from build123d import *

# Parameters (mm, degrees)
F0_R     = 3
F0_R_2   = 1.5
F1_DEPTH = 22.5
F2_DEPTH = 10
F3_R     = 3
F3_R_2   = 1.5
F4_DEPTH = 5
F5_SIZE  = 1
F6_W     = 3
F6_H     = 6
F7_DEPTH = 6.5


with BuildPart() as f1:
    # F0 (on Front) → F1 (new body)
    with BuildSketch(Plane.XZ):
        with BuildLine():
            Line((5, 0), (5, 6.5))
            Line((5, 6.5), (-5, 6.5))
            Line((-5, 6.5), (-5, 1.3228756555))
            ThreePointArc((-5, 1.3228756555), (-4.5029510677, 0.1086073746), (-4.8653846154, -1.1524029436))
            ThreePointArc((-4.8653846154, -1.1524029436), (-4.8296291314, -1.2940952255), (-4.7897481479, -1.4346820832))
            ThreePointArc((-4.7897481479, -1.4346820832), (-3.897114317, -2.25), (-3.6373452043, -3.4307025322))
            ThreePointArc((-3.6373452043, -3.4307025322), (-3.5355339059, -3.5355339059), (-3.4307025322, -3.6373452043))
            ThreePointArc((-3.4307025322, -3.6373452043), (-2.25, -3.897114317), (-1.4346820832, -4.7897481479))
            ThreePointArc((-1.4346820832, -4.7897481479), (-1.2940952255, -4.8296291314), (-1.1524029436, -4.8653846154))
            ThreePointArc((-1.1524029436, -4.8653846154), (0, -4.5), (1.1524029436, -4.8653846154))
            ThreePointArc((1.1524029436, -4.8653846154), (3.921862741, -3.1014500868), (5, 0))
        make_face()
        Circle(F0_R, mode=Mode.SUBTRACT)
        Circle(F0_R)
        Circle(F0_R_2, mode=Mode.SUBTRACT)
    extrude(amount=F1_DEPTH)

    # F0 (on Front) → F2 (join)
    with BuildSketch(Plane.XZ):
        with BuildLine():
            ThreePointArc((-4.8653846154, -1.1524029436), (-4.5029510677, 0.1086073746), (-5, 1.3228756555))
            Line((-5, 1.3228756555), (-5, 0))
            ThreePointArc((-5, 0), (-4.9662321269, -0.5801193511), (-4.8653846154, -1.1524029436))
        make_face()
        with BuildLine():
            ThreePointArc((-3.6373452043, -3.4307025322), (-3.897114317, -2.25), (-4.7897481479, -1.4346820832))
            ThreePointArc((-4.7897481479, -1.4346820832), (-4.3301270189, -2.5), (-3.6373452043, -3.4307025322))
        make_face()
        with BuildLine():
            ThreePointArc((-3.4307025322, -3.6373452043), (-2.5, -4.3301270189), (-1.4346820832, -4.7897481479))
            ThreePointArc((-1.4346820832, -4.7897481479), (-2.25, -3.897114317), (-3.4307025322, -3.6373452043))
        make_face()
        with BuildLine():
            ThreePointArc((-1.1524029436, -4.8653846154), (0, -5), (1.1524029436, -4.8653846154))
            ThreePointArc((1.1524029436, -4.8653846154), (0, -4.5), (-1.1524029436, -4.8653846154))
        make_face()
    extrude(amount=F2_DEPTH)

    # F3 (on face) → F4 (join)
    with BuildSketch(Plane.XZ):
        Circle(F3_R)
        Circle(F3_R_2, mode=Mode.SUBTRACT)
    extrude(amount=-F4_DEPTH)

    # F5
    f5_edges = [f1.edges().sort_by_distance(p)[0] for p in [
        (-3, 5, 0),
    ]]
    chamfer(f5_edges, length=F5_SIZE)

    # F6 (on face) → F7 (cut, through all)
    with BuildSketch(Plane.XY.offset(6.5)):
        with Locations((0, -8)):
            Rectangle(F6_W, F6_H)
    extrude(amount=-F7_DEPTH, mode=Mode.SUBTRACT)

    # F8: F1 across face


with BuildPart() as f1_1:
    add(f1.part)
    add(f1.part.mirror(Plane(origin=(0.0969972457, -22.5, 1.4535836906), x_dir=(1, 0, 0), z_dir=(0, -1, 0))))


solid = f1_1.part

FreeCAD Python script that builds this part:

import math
import FreeCAD as App
import Part
import Sketcher


def edges_at(feature, points):
    """Names of the edges that pass closest to the given points."""
    edges = feature.Shape.Edges
    near = lambda p: min(range(len(edges)), key=lambda i: edges[i].distToShape(Part.Vertex(*p))[0])
    return sorted({f"Edge{near(p) + 1}" for p in points})

doc = App.newDocument("Part")
body = doc.addObject("PartDesign::Body", "Body")

# Sketch on XZ plane
sketch1 = body.newObject("Sketcher::SketchObject", "Sketch")
sketch1.AttachmentSupport = (doc.getObject("XZ_Plane"), [""])
sketch1.MapMode = "FlatFace"
sketch1.addGeometry([
    Part.LineSegment(App.Vector(5, 0, 0), App.Vector(5, 6.5, 0)),  # 0
    Part.LineSegment(App.Vector(5, 6.5, 0), App.Vector(-5, 6.5, 0)),  # 1
    Part.LineSegment(App.Vector(-5, 6.5, 0), App.Vector(-5, 1.322876, 0)),  # 2
    Part.ArcOfCircle(Part.Circle(App.Vector(-6.5, 0, 0), App.Vector(0, 0, 1), 2), math.radians(-35.183815), math.radians(41.409622)),  # 3
    Part.ArcOfCircle(Part.Circle(App.Vector(0, 0, 0), App.Vector(0, 0, 1), 5), math.radians(-166.674632), math.radians(-163.325368)),  # 4
    Part.ArcOfCircle(Part.Circle(App.Vector(-5.629165, -3.25, 0), App.Vector(0, 0, 1), 2), math.radians(-5.183815), math.radians(65.183816)),  # 5
    Part.ArcOfCircle(Part.Circle(App.Vector(0, 0, 0), App.Vector(0, 0, 1), 5), math.radians(-136.674632), math.radians(-133.325368)),  # 6
    Part.ArcOfCircle(Part.Circle(App.Vector(-3.25, -5.629165, 0), App.Vector(0, 0, 1), 2), math.radians(24.816184), math.radians(95.183815)),  # 7
    Part.ArcOfCircle(Part.Circle(App.Vector(0, 0, 0), App.Vector(0, 0, 1), 5), math.radians(-106.674632), math.radians(-103.325368)),  # 8
    Part.ArcOfCircle(Part.Circle(App.Vector(0, -6.5, 0), App.Vector(0, 0, 1), 2), math.radians(54.816185), math.radians(125.183815)),  # 9
    Part.ArcOfCircle(Part.Circle(App.Vector(0, 0, 0), App.Vector(0, 0, 1), 5), math.radians(-76.674632), math.radians(0)),  # 10
    Part.Circle(App.Vector(0, 0, 0), App.Vector(0, 0, 1), 1.5),  # 11
], False)
sketch1.addConstraint([
    Sketcher.Constraint("Coincident", 0, 2, 1, 1),
    Sketcher.Constraint("Coincident", 1, 2, 2, 1),
    Sketcher.Constraint("Coincident", 2, 2, 3, 2),
    Sketcher.Constraint("Coincident", 3, 1, 4, 1),
    Sketcher.Constraint("Coincident", 4, 2, 5, 2),
    Sketcher.Constraint("Coincident", 5, 1, 6, 1),
    Sketcher.Constraint("Coincident", 6, 2, 7, 2),
    Sketcher.Constraint("Coincident", 7, 1, 8, 1),
    Sketcher.Constraint("Coincident", 8, 2, 9, 2),
    Sketcher.Constraint("Coincident", 9, 1, 10, 1),
    Sketcher.Constraint("Tangent", 10, 2, 0, 1),
    Sketcher.Constraint("Vertical", 0),
    Sketcher.Constraint("Horizontal", 1),
    Sketcher.Constraint("Vertical", 2),
    Sketcher.Constraint("Coincident", 4, 3, -1, 1),
    Sketcher.Constraint("Coincident", 6, 3, -1, 1),
    Sketcher.Constraint("Coincident", 8, 3, -1, 1),
    Sketcher.Constraint("Coincident", 10, 3, -1, 1),
    Sketcher.Constraint("Coincident", 11, 3, -1, 1),
    Sketcher.Constraint("Equal", 3, 5),
    Sketcher.Constraint("Equal", 4, 6),
    Sketcher.Constraint("Equal", 5, 7),
    Sketcher.Constraint("Equal", 6, 8),
    Sketcher.Constraint("Equal", 7, 9),
    Sketcher.Constraint("Equal", 8, 10),
    Sketcher.Constraint("PointOnObject", 3, 3, -1),
    Sketcher.Constraint("PointOnObject", 9, 3, -2),
    Sketcher.Constraint("Diameter", 11, 3.0),
    Sketcher.Constraint("Radius", 3, 2.0),
    Sketcher.Constraint("Radius", 4, 5.0),
    Sketcher.Constraint("DistanceX", 1, 2, 1, 1, 10.0),
    Sketcher.Constraint("DistanceY", 0, 1, 0, 2, 6.5),
    Sketcher.Constraint("DistanceX", 3, 3, -1, 1, 6.5),
    Sketcher.Constraint("DistanceY", 9, 3, -1, 1, 6.5),
    Sketcher.Constraint("DistanceY", 5, 3, -1, 1, 3.25),
    Sketcher.Constraint("DistanceX", 7, 3, -1, 1, 3.25),
    Sketcher.Constraint("DistanceY", 5, 1, 3, 1, 2.2783),
    Sketcher.Constraint("DistanceX", 6, 2, 8, 2, 2.2783),
])
pad1 = body.newObject("PartDesign::Pad", "Pad")
pad1.Profile = sketch1
pad1.Length = 22.5

# Sketch on XZ plane
sketch2 = body.newObject("Sketcher::SketchObject", "Sketch001")
sketch2.AttachmentSupport = (doc.getObject("XZ_Plane"), [""])
sketch2.MapMode = "FlatFace"
sketch2.addGeometry([
    Part.ArcOfCircle(Part.Circle(App.Vector(-6.5, 0, 0), App.Vector(0, 0, 1), 2), math.radians(-35.183815), math.radians(41.409622)),  # 0
    Part.LineSegment(App.Vector(-5, 1.322876, 0), App.Vector(-5, 0, 0)),  # 1
    Part.ArcOfCircle(Part.Circle(App.Vector(0, 0, 0), App.Vector(0, 0, 1), 5), math.radians(180), math.radians(193.325368)),  # 2
    Part.ArcOfCircle(Part.Circle(App.Vector(-5.629165, -3.25, 0), App.Vector(0, 0, 1), 2), math.radians(-5.183815), math.radians(65.183816)),  # 3
    Part.ArcOfCircle(Part.Circle(App.Vector(0, 0, 0), App.Vector(0, 0, 1), 5), math.radians(-163.325368), math.radians(-136.674632)),  # 4
    Part.ArcOfCircle(Part.Circle(App.Vector(0, 0, 0), App.Vector(0, 0, 1), 5), math.radians(-133.325368), math.radians(-106.674632)),  # 5
    Part.ArcOfCircle(Part.Circle(App.Vector(-3.25, -5.629165, 0), App.Vector(0, 0, 1), 2), math.radians(24.816184), math.radians(95.183815)),  # 6
    Part.ArcOfCircle(Part.Circle(App.Vector(0, 0, 0), App.Vector(0, 0, 1), 5), math.radians(-103.325368), math.radians(-76.674632)),  # 7
    Part.ArcOfCircle(Part.Circle(App.Vector(0, -6.5, 0), App.Vector(0, 0, 1), 2), math.radians(54.816185), math.radians(125.183815)),  # 8
], False)
sketch2.addConstraint([
    Sketcher.Constraint("Coincident", 0, 2, 1, 1),
    Sketcher.Constraint("Tangent", 1, 2, 2, 1),
    Sketcher.Constraint("Coincident", 2, 2, 0, 1),
    Sketcher.Constraint("Coincident", 3, 1, 4, 2),
    Sketcher.Constraint("Coincident", 4, 1, 3, 2),
    Sketcher.Constraint("Coincident", 5, 1, 6, 2),
    Sketcher.Constraint("Coincident", 6, 1, 5, 2),
    Sketcher.Constraint("Coincident", 7, 1, 8, 2),
    Sketcher.Constraint("Coincident", 8, 1, 7, 2),
    Sketcher.Constraint("Vertical", 1),
    Sketcher.Constraint("Coincident", 2, 3, -1, 1),
    Sketcher.Constraint("Coincident", 4, 3, -1, 1),
    Sketcher.Constraint("Coincident", 5, 3, -1, 1),
    Sketcher.Constraint("Coincident", 7, 3, -1, 1),
    Sketcher.Constraint("Equal", 0, 3),
    Sketcher.Constraint("Equal", 2, 4),
    Sketcher.Constraint("Equal", 4, 5),
    Sketcher.Constraint("Equal", 3, 6),
    Sketcher.Constraint("Equal", 5, 7),
    Sketcher.Constraint("Equal", 6, 8),
    Sketcher.Constraint("PointOnObject", 0, 3, -1),
    Sketcher.Constraint("PointOnObject", 8, 3, -2),
    Sketcher.Constraint("Radius", 0, 2.0),
    Sketcher.Constraint("Radius", 2, 5.0),
    Sketcher.Constraint("DistanceX", 0, 3, -1, 1, 6.5),
    Sketcher.Constraint("DistanceY", 8, 3, -1, 1, 6.5),
    Sketcher.Constraint("DistanceY", 3, 3, -1, 1, 3.25),
    Sketcher.Constraint("DistanceX", 6, 3, -1, 1, 3.25),
    Sketcher.Constraint("DistanceY", 3, 1, 2, 2, 2.2783),
    Sketcher.Constraint("DistanceX", 5, 1, 7, 1, 2.2783),
])
pad2 = body.newObject("PartDesign::Pad", "Pad001")
pad2.Profile = sketch2
pad2.Length = 10

# Sketch on XZ plane
sketch3 = body.newObject("Sketcher::SketchObject", "Sketch002")
sketch3.AttachmentSupport = (doc.getObject("XZ_Plane"), [""])
sketch3.MapMode = "FlatFace"
sketch3.addGeometry([
    Part.Circle(App.Vector(0, 0, 0), App.Vector(0, 0, 1), 3),
    Part.Circle(App.Vector(0, 0, 0), App.Vector(0, 0, 1), 1.5),
], False)
sketch3.addConstraint([
    Sketcher.Constraint("Coincident", 0, 3, -1, 1),
    Sketcher.Constraint("Coincident", 1, 3, -1, 1),
    Sketcher.Constraint("Diameter", 0, 6.0),
    Sketcher.Constraint("Diameter", 1, 3.0),
])
pad3 = body.newObject("PartDesign::Pad", "Pad002")
pad3.Profile = sketch3
pad3.Length = 5
pad3.Reversed = True
doc.recompute()

chamfer = body.newObject("PartDesign::Chamfer", "Chamfer")
chamfer.Base = (pad3, edges_at(pad3, [(-3, 5, 0)]))
chamfer.Size = 1

# Sketch on XY plane
sketch4 = body.newObject("Sketcher::SketchObject", "Sketch003")
sketch4.AttachmentSupport = (doc.getObject("XY_Plane"), [""])
sketch4.MapMode = "FlatFace"
sketch4.AttachmentOffset = App.Placement(App.Vector(0, 0, 6.5), App.Rotation())
sketch4.addGeometry([
    Part.LineSegment(App.Vector(-1.5, -5, 0), App.Vector(-1.5, -11, 0)),
    Part.LineSegment(App.Vector(-1.5, -11, 0), App.Vector(1.5, -11, 0)),
    Part.LineSegment(App.Vector(1.5, -11, 0), App.Vector(1.5, -5, 0)),
    Part.LineSegment(App.Vector(1.5, -5, 0), App.Vector(-1.5, -5, 0)),
], False)
sketch4.addConstraint([
    Sketcher.Constraint("Coincident", 0, 2, 1, 1),
    Sketcher.Constraint("Coincident", 1, 2, 2, 1),
    Sketcher.Constraint("Coincident", 2, 2, 3, 1),
    Sketcher.Constraint("Coincident", 3, 2, 0, 1),
    Sketcher.Constraint("Vertical", 0),
    Sketcher.Constraint("Horizontal", 1),
    Sketcher.Constraint("Vertical", 2),
    Sketcher.Constraint("Horizontal", 3),
    Sketcher.Constraint("DistanceX", 1, 1, 1, 2, 3.0),
    Sketcher.Constraint("DistanceY", 0, 2, 0, 1, 6.0),
    Sketcher.Constraint("DistanceY", 0, 2, -1, 1, 11.0),
    Sketcher.Constraint("DistanceX", 0, 2, -1, 1, 1.5),
])
pocket1 = body.newObject("PartDesign::Pocket", "Pocket")
pocket1.Profile = sketch4
pocket1.Length = 6.5
body2 = doc.addObject("PartDesign::Body", "Body001")
doc.recompute()

body2.BaseFeature = body
doc.recompute()

mirroring = doc.addObject("Part::Mirroring", "Mirroring")
mirroring.Source = body
mirroring.Base = App.Vector(0.096997, -22.5, 1.453584)
mirroring.Normal = App.Vector(0, -1, 0)
body3 = doc.addObject("PartDesign::Body", "Body002")
body3.BaseFeature = mirroring
boolean = body2.newObject("PartDesign::Boolean", "Boolean")
boolean.Type = "Fuse"
boolean.addObjects([body3])
doc.recompute()
mirroring.Visibility = False

doc.recompute()
